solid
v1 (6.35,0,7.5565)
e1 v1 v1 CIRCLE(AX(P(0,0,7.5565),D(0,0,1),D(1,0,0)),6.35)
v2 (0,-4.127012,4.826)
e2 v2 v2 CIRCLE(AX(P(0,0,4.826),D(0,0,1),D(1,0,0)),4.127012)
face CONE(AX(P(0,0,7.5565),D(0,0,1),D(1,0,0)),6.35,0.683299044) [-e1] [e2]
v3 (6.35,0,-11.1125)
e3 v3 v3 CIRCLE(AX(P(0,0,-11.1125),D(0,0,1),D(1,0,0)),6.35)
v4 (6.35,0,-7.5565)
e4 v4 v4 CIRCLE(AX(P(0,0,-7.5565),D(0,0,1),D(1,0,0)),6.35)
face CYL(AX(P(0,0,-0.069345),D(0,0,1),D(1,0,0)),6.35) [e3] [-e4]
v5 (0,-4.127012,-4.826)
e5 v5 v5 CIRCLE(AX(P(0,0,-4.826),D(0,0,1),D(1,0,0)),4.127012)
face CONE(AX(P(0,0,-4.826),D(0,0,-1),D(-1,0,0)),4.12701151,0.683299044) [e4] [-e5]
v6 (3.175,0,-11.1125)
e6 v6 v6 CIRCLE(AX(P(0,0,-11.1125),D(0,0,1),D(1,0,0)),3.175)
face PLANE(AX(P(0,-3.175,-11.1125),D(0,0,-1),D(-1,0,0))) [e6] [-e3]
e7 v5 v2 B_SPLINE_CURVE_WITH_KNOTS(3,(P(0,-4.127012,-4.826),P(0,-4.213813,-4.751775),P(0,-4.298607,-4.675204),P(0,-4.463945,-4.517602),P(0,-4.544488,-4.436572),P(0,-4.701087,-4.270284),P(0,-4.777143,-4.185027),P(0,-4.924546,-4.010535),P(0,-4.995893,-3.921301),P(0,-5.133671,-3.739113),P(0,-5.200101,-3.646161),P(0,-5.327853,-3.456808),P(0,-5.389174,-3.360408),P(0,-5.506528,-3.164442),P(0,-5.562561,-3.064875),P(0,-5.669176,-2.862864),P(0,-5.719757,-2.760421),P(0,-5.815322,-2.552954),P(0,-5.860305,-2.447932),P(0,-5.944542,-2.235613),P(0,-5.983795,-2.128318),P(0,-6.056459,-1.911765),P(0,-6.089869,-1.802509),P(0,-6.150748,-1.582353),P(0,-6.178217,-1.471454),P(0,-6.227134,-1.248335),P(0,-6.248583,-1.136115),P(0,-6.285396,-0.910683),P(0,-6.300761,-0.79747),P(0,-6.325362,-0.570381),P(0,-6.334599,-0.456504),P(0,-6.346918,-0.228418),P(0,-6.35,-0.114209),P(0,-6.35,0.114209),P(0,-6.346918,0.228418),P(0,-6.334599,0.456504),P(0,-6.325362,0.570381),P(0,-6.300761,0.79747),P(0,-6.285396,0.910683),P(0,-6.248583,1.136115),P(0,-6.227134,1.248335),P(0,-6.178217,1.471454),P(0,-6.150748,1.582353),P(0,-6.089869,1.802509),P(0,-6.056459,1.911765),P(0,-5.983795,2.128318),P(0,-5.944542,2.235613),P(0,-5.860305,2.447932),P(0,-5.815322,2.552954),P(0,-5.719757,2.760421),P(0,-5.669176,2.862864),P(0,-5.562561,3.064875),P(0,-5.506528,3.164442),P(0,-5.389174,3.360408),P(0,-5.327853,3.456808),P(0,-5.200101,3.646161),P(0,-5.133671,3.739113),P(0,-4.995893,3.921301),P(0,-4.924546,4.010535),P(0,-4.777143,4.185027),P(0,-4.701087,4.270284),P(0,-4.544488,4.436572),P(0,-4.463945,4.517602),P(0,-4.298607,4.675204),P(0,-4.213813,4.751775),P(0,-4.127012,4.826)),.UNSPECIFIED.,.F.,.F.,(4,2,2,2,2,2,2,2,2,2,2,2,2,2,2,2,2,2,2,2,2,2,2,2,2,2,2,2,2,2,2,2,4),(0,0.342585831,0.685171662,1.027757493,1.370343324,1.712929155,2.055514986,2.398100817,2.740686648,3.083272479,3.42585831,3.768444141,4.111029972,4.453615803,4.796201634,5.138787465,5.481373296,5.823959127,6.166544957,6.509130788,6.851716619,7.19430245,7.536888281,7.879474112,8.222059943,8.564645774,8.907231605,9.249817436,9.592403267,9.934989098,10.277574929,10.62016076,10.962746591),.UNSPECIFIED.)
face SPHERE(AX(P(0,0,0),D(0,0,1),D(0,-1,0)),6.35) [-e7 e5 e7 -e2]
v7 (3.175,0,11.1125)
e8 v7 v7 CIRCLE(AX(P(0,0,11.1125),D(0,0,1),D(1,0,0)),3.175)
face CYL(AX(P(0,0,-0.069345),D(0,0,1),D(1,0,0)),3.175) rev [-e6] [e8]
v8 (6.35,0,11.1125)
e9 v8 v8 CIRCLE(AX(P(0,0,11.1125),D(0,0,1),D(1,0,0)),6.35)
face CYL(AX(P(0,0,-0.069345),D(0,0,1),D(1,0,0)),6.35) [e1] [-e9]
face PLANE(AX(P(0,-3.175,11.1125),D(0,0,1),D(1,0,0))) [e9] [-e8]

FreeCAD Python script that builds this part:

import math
import FreeCAD as App
import Part
import Sketcher
Q = App.Units.Quantity

doc = App.newDocument("Part")
body = doc.addObject("PartDesign::Body", "Body")

# Sketch on YZ plane
sketch1 = body.newObject("Sketcher::SketchObject", "Sketch")
sketch1.AttachmentSupport = (doc.getObject("YZ_Plane"), [""])
sketch1.MapMode = "FlatFace"
sketch1.addGeometry(Part.LineSegment(App.Vector(-3.2, -11.1, 0), App.Vector(-3.2, 11.1, 0)), False)
sketch1.addGeometry(Part.LineSegment(App.Vector(-3.2, 11.1, 0), App.Vector(-6.3, 11.1, 0)), False)
sketch1.addGeometry(Part.LineSegment(App.Vector(-6.3, 11.1, 0), App.Vector(-6.3, 7.6, 0)), False)
sketch1.addGeometry(Part.LineSegment(App.Vector(-6.3, 7.6, 0), App.Vector(-4.1, 4.8, 0)), False)
sketch1.addGeometry(Part.ArcOfCircle(Part.Circle(App.Vector(0, 0, 0), App.Vector(0, 0, 1), 6.4), math.radians(131), math.radians(229)), False)
sketch1.addGeometry(Part.LineSegment(App.Vector(-4.1, -4.8, 0), App.Vector(-6.3, -7.6, 0)), False)
sketch1.addGeometry(Part.LineSegment(App.Vector(-6.3, -7.6, 0), App.Vector(-6.3, -11.1, 0)), False)
sketch1.addGeometry(Part.LineSegment(App.Vector(-6.3, -11.1, 0), App.Vector(-3.2, -11.1, 0)), False)
sketch1.addConstraint(Sketcher.Constraint("Coincident", 0, 2, 1, 1))
sketch1.addConstraint(Sketcher.Constraint("Coincident", 1, 2, 2, 1))
sketch1.addConstraint(Sketcher.Constraint("Coincident", 2, 2, 3, 1))
sketch1.addConstraint(Sketcher.Constraint("Coincident", 3, 2, 4, 1))
sketch1.addConstraint(Sketcher.Constraint("Coincident", 4, 2, 5, 1))
sketch1.addConstraint(Sketcher.Constraint("Coincident", 5, 2, 6, 1))
sketch1.addConstraint(Sketcher.Constraint("Coincident", 6, 2, 7, 1))
sketch1.addConstraint(Sketcher.Constraint("Coincident", 7, 2, 0, 1))
sketch1.addConstraint(Sketcher.Constraint("Vertical", 0))
sketch1.addConstraint(Sketcher.Constraint("Horizontal", 1))
sketch1.addConstraint(Sketcher.Constraint("Vertical", 2))
sketch1.addConstraint(Sketcher.Constraint("Vertical", 6))
sketch1.addConstraint(Sketcher.Constraint("Horizontal", 7))
sketch1.addConstraint(Sketcher.Constraint("Coincident", 4, 3, -1, 1))
sketch1.addConstraint(Sketcher.Constraint("Symmetric", 2, 2, 5, 2, -1))
sketch1.addConstraint(Sketcher.Constraint("Vertical", 3, 2, 4, 2))
sketch1.addConstraint(Sketcher.Constraint("Equal", 2, 6))
sketch1.addConstraint(Sketcher.Constraint("Radius", 4, Q("0.25 in")))
sketch1.addConstraint(Sketcher.Constraint("DistanceY", 2, 2, 2, 1, Q("0.14 in")))
sketch1.addConstraint(Sketcher.Constraint("DistanceX", 1, 2, 1, 1, Q("0.125 in")))
sketch1.addConstraint(Sketcher.Constraint("DistanceY", 0, 1, 0, 2, Q("0.875 in")))
sketch1.addConstraint(Sketcher.Constraint("DistanceX", 1, 2, -1, 1, Q("0.25 in")))
sketch1.addConstraint(Sketcher.Constraint("DistanceY", -1, 1, 3, 2, Q("0.19 in")))
revolution = body.newObject("PartDesign::Revolution", "Revolution")
revolution.Profile = sketch1
revolution.ReferenceAxis = (sketch1, ["V_Axis"])
revolution.Angle = 360

doc.recompute()
